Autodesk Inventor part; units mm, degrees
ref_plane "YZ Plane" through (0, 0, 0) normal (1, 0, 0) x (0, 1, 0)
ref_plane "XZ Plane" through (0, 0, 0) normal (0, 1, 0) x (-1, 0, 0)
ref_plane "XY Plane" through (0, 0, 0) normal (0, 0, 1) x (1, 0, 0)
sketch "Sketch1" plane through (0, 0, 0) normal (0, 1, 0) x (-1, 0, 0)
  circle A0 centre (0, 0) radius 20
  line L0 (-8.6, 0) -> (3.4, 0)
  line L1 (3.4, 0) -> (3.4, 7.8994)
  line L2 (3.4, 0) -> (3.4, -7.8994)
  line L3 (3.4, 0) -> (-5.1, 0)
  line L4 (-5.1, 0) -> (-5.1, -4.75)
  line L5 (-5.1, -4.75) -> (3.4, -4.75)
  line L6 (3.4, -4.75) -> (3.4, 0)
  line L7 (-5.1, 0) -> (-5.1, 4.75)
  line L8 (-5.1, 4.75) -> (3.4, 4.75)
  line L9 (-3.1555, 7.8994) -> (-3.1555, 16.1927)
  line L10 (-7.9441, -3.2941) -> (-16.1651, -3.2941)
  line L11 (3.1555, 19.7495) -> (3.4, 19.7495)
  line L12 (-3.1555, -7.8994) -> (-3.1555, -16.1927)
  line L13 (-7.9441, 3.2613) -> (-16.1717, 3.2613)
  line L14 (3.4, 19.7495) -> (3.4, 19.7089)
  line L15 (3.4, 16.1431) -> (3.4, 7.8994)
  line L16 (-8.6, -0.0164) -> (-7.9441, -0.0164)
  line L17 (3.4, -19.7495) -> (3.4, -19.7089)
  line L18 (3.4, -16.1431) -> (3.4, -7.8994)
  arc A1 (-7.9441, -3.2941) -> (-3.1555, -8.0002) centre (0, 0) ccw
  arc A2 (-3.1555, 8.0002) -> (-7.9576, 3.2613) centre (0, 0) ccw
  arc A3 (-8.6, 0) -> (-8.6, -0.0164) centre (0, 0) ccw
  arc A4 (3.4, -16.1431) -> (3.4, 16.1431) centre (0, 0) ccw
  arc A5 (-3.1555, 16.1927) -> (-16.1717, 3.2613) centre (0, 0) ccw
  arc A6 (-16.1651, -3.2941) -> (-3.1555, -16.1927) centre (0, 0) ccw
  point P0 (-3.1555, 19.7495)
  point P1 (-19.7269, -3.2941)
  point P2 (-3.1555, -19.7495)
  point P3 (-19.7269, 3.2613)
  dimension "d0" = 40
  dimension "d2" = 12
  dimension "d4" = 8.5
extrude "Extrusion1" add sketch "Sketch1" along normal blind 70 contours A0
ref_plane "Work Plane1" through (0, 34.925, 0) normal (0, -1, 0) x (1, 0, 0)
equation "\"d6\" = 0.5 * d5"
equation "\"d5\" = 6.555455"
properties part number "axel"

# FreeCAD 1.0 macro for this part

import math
import FreeCAD as App
import Part
import Sketcher

V = App.Vector
Q = App.Units.Quantity

doc = App.newDocument("Part")
params = doc.addObject("Spreadsheet::Sheet", "Params")
for row, (alias, value) in enumerate([
    ("sketch1_diameter", "40 mm"),
    ("sketch1_width", "8.5 mm"),
    ("sketch1_radius", "8.6 mm"),
    ("sketch1_height", "9.5 mm"),
    ("pad1_length", "70 mm"),
], start=1):
    params.set(f"A{row}", alias)
    params.set(f"B{row}", "=" + value)
    params.setAlias(f"B{row}", alias)

body = doc.addObject("PartDesign::Body", "Body")

# Sketch on XZ plane
sketch1 = body.newObject("Sketcher::SketchObject", "Sketch")
sketch1.AttachmentSupport = (doc.getObject("XZ_Plane"), [""])
sketch1.MapMode = "FlatFace"
sketch1.addGeometry([
    Part.Circle(V(0, 0, 0), V(0, 0, 1), 20),  # 0
    Part.LineSegment(V(16, -3, 0), V(8, -3, 0)),  # 1
    Part.ArcOfCircle(Part.Circle(V(0, 0, 0), V(0, 0, 1), 9), math.radians(-68), math.radians(-23)),  # 2
    Part.LineSegment(V(3, -8, 0), V(3, -16, 0)),  # 3
    Part.ArcOfCircle(Part.Circle(V(0, 0, 0), V(0, 0, 1), 16), math.radians(-79), math.radians(-12)),  # 4
    Part.LineSegment(V(3, 16, 0), V(3, 8, 0)),  # 5
    Part.ArcOfCircle(Part.Circle(V(0, 0, 0), V(0, 0, 1), 9), math.radians(22), math.radians(68)),  # 6
    Part.LineSegment(V(8, 3, 0), V(16, 3, 0)),  # 7
    Part.ArcOfCircle(Part.Circle(V(0, 0, 0), V(0, 0, 1), 16), math.radians(11), math.radians(79)),  # 8
    Part.LineSegment(V(5, -5, 0), V(5, 5, 0)),  # 9
    Part.LineSegment(V(5, 5, 0), V(-3, 5, 0)),  # 10
    Part.LineSegment(V(-3, 5, 0), V(-3, 16, 0)),  # 11
    Part.ArcOfCircle(Part.Circle(V(0, 0, 0), V(0, 0, 1), 16), math.radians(102), math.radians(258)),  # 12
    Part.LineSegment(V(-3, -16, 0), V(-3, -5, 0)),  # 13
    Part.LineSegment(V(-3, -5, 0), V(5, -5, 0)),  # 14
], False)
sketch1.addConstraint([
    Sketcher.Constraint("Coincident", 1, 2, 2, 2),
    Sketcher.Constraint("Coincident", 2, 1, 3, 1),
    Sketcher.Constraint("Coincident", 3, 2, 4, 1),
    Sketcher.Constraint("Coincident", 4, 2, 1, 1),
    Sketcher.Constraint("Coincident", 5, 2, 6, 2),
    Sketcher.Constraint("Coincident", 6, 1, 7, 1),
    Sketcher.Constraint("Coincident", 7, 2, 8, 1),
    Sketcher.Constraint("Coincident", 8, 2, 5, 1),
    Sketcher.Constraint("Coincident", 9, 2, 10, 1),
    Sketcher.Constraint("Coincident", 10, 2, 11, 1),
    Sketcher.Constraint("Coincident", 11, 2, 12, 1),
    Sketcher.Constraint("Coincident", 12, 2, 13, 1),
    Sketcher.Constraint("Coincident", 13, 2, 14, 1),
    Sketcher.Constraint("Coincident", 14, 2, 9, 1),
    Sketcher.Constraint("Horizontal", 1),
    Sketcher.Constraint("Vertical", 3),
    Sketcher.Constraint("Vertical", 5),
    Sketcher.Constraint("Horizontal", 7),
    Sketcher.Constraint("Vertical", 9),
    Sketcher.Constraint("Horizontal", 10),
    Sketcher.Constraint("Vertical", 11),
    Sketcher.Constraint("Vertical", 13),
    Sketcher.Constraint("Horizontal", 14),
    Sketcher.Constraint("Coincident", 0, 3, -1, 1),
    Sketcher.Constraint("Coincident", 2, 3, -1, 1),
    Sketcher.Constraint("Coincident", 4, 3, -1, 1),
    Sketcher.Constraint("Coincident", 6, 3, -1, 1),
    Sketcher.Constraint("Coincident", 8, 3, -1, 1),
    Sketcher.Constraint("Coincident", 12, 3, -1, 1),
    Sketcher.Constraint("Equal", 2, 6),
    Sketcher.Constraint("Equal", 4, 8),
    Sketcher.Constraint("Equal", 8, 12),
    Sketcher.Constraint("Symmetric", 10, 2, 13, 2, -1),
    Sketcher.Constraint("Vertical", 3, 2, 5, 2),
    Sketcher.Constraint("Diameter", 0, Q("40 mm")),
    Sketcher.Constraint("DistanceX", 10, 2, 10, 1, Q("8.5 mm")),
    Sketcher.Constraint("Radius", 2, Q("8.6 mm")),
    Sketcher.Constraint("DistanceY", 9, 1, 9, 2, Q("9.5 mm")),
    Sketcher.Constraint("DistanceX", -1, 1, 9, 2, Q("5.1 mm")),
    Sketcher.Constraint("Radius", 4, Q("16.4973 mm")),
    Sketcher.Constraint("DistanceX", 1, 2, 1, 1, Q("8.221 mm")),
    Sketcher.Constraint("DistanceX", 7, 1, 7, 2, Q("8.214 mm")),
    Sketcher.Constraint("DistanceY", 3, 2, 3, 1, Q("8.1925 mm")),
])
sketch1.setExpression("Constraints[34]", "Params.sketch1_diameter")
sketch1.setExpression("Constraints[35]", "Params.sketch1_width")
sketch1.setExpression("Constraints[36]", "Params.sketch1_radius")
sketch1.setExpression("Constraints[37]", "Params.sketch1_height")
pad1 = body.newObject("PartDesign::Pad", "Pad")
pad1.Profile = sketch1
pad1.setExpression("Length", "Params.pad1_length")
pad1.Reversed = True

doc.recompute()
